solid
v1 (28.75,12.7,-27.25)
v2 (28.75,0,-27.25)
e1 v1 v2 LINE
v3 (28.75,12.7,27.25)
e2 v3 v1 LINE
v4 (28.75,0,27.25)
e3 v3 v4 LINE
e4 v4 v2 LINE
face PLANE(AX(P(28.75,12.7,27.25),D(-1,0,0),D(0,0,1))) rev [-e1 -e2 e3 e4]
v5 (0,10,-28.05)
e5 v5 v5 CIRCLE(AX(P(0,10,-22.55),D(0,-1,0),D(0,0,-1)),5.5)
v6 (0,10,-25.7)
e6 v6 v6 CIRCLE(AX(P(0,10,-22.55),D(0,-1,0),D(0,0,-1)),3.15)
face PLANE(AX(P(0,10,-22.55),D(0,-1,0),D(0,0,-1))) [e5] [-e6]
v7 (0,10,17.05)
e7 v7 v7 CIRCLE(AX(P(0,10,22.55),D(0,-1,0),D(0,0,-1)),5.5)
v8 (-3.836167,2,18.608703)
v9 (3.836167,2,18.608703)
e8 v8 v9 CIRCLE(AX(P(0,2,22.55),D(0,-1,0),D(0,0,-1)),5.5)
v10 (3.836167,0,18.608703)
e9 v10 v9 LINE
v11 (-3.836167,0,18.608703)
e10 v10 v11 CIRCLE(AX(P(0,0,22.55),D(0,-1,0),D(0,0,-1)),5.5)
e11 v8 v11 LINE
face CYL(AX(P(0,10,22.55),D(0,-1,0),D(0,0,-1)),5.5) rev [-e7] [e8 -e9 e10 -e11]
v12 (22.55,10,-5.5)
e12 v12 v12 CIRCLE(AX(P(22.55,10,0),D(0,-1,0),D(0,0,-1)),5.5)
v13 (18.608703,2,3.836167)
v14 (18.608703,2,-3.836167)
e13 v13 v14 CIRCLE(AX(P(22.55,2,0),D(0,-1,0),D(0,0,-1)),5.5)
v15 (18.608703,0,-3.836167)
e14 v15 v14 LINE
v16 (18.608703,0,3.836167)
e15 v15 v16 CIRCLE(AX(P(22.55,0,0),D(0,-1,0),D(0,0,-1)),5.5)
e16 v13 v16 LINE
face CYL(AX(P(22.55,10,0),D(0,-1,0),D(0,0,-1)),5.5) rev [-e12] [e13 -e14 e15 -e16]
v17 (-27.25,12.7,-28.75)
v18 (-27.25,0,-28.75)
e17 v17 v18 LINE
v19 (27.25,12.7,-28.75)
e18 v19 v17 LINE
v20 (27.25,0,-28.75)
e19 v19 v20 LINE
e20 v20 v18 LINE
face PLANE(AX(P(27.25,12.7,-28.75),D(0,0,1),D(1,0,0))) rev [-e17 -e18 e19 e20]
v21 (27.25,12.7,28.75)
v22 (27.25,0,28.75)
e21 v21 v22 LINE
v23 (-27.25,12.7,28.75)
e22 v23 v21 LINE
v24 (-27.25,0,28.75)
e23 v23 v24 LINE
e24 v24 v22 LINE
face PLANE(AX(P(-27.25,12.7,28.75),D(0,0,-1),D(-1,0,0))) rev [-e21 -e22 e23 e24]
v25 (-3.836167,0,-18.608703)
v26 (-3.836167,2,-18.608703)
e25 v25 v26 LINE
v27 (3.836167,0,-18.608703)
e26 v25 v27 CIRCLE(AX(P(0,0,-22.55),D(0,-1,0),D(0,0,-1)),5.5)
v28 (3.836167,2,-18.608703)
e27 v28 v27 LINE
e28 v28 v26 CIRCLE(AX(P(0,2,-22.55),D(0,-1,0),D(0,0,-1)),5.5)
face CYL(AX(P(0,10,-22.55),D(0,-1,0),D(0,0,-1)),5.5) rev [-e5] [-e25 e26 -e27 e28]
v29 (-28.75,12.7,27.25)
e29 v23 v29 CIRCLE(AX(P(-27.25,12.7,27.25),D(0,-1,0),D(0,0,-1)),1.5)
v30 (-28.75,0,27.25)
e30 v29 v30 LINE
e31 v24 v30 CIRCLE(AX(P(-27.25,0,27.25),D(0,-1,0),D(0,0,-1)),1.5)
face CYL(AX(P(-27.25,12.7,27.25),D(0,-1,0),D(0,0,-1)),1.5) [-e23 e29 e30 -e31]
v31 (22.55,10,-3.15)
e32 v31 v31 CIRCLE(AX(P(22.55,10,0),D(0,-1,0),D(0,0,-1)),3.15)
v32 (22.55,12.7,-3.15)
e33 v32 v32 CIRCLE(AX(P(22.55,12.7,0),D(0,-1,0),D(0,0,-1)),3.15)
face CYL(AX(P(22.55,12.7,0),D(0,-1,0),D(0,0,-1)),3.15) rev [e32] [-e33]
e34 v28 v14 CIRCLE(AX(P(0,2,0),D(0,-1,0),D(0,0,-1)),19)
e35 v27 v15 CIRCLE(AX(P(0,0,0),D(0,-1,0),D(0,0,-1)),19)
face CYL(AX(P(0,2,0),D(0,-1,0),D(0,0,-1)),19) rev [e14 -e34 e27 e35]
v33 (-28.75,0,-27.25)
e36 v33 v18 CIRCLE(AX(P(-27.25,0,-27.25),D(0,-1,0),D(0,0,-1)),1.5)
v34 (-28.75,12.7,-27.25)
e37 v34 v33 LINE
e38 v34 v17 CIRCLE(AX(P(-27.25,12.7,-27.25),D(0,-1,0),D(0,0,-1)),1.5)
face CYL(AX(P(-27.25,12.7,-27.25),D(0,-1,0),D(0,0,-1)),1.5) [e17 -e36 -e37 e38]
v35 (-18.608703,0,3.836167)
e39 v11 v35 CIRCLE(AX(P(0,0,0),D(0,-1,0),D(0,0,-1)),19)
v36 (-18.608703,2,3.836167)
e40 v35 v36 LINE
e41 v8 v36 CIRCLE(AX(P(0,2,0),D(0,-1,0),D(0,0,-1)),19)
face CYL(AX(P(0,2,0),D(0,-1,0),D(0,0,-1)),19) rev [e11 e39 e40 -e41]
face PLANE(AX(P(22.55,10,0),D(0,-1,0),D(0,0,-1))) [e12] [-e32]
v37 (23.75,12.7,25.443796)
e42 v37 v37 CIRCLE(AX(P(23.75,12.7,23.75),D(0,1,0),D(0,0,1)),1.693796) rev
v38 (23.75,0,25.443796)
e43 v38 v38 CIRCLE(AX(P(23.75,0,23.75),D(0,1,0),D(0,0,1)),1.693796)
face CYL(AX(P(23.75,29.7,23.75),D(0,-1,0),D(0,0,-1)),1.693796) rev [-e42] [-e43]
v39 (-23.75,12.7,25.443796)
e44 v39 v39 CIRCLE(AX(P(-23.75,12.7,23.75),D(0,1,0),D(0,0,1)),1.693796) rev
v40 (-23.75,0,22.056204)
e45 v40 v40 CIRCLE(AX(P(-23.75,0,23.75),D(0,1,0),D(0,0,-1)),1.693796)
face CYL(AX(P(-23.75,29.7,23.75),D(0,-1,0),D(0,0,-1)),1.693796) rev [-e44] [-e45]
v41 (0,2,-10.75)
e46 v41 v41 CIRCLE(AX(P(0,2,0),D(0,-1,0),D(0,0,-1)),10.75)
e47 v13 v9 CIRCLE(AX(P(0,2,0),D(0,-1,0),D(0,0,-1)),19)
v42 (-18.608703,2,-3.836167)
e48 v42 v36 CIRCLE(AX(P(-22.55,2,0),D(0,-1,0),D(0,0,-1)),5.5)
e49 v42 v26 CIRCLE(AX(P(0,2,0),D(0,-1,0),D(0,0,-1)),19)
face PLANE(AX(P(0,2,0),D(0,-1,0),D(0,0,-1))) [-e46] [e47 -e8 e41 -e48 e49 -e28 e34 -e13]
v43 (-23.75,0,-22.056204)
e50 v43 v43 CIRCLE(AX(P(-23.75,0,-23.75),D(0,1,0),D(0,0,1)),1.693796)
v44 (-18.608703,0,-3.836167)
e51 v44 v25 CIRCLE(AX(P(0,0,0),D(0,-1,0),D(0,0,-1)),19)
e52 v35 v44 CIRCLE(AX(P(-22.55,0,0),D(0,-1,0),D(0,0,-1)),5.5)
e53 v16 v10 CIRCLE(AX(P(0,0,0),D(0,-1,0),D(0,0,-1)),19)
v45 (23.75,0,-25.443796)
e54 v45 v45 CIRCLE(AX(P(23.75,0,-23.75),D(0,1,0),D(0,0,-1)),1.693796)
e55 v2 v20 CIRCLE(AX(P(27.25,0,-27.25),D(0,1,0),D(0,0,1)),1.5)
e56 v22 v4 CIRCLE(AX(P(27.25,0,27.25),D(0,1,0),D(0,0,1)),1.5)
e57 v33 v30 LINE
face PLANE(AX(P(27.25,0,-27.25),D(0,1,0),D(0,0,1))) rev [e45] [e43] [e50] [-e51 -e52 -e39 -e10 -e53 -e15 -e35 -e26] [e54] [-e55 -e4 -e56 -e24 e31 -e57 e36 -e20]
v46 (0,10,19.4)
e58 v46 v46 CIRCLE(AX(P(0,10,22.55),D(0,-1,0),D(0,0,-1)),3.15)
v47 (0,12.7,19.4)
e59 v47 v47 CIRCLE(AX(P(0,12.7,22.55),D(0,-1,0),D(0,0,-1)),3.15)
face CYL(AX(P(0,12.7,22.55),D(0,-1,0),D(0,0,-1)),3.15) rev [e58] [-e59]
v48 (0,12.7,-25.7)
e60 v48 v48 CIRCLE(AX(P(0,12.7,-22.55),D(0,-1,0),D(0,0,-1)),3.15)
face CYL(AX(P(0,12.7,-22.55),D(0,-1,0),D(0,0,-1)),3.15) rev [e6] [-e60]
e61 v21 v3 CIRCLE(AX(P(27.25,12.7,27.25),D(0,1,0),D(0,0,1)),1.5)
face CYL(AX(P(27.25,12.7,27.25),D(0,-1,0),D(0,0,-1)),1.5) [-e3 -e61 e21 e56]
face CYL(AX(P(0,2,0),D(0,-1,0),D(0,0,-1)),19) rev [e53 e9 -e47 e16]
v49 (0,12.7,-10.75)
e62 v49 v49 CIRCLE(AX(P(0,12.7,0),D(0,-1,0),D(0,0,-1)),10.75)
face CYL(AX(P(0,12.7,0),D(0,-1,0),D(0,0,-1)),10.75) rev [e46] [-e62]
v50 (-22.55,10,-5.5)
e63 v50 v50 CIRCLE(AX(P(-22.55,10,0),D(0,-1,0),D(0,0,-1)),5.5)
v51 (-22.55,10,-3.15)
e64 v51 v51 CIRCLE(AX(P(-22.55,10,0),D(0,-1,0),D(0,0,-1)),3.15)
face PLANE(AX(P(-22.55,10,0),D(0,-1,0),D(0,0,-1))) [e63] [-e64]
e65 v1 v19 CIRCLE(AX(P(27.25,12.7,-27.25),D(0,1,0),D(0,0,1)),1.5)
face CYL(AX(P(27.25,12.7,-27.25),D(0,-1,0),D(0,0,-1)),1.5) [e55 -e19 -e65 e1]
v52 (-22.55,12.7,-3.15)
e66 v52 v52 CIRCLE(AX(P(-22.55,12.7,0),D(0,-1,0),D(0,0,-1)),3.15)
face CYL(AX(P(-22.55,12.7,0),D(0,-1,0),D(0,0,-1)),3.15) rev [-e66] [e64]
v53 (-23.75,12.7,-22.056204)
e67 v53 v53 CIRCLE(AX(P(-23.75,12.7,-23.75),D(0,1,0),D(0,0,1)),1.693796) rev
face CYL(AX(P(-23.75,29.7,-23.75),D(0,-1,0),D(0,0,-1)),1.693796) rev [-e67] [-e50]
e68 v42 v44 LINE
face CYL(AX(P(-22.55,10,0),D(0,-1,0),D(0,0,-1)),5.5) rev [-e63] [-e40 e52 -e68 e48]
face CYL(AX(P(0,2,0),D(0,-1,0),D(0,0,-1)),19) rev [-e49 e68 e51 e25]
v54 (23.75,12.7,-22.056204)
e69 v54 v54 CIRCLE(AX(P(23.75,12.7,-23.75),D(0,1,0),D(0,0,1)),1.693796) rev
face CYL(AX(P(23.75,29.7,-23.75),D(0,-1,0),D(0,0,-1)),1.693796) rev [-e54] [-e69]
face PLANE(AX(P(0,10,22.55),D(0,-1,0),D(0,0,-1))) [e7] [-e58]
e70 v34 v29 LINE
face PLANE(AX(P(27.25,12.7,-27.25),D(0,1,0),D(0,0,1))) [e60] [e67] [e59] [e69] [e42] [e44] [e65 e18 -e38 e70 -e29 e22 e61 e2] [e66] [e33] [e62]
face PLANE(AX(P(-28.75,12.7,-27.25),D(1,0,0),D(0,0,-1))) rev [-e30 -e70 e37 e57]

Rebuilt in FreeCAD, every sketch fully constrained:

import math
import FreeCAD as App
import Part
import Sketcher
Q = App.Units.Quantity


def add_polygon(sketch, points):
    """Adds a closed chain of lines whose ends are joined by coincident constraints."""
    first, n = sketch.GeometryCount, len(points)
    for a, b in zip(points, points[1:] + points[:1]):
        sketch.addGeometry(Part.LineSegment(App.Vector(*a, 0), App.Vector(*b, 0)), False)
    for i in range(n):
        sketch.addConstraint(Sketcher.Constraint("Coincident", first + i, 2, first + (i + 1) % n, 1))

doc = App.newDocument("Part")
body = doc.addObject("PartDesign::Body", "Body")

# Sketch on XZ plane
sketch1 = body.newObject("Sketcher::SketchObject", "Sketch")
sketch1.AttachmentSupport = (doc.getObject("XZ_Plane"), [""])
sketch1.MapMode = "FlatFace"
sketch1.addGeometry([
    Part.LineSegment(App.Vector(-27.2, 28.8, 0), App.Vector(27.2, 28.8, 0)),  # 0
    Part.ArcOfCircle(Part.Circle(App.Vector(27.3, 27.3, 0), App.Vector(0, 0, 1), 1.5), math.radians(0), math.radians(90)),  # 1
    Part.LineSegment(App.Vector(28.8, 27.2, 0), App.Vector(28.8, -27.2, 0)),  # 2
    Part.ArcOfCircle(Part.Circle(App.Vector(27.3, -27.3, 0), App.Vector(0, 0, 1), 1.5), math.radians(-90), math.radians(0)),  # 3
    Part.LineSegment(App.Vector(27.2, -28.8, 0), App.Vector(-27.2, -28.8, 0)),  # 4
    Part.ArcOfCircle(Part.Circle(App.Vector(-27.3, -27.3, 0), App.Vector(0, 0, 1), 1.5), math.radians(180), math.radians(270)),  # 5
    Part.LineSegment(App.Vector(-28.8, -27.2, 0), App.Vector(-28.8, 27.2, 0)),  # 6
    Part.ArcOfCircle(Part.Circle(App.Vector(-27.3, 27.3, 0), App.Vector(0, 0, 1), 1.5), math.radians(90), math.radians(180)),  # 7
], False)
sketch1.addConstraint([
    Sketcher.Constraint("Tangent", 0, 2, 1, 2),
    Sketcher.Constraint("Tangent", 1, 1, 2, 1),
    Sketcher.Constraint("Tangent", 2, 2, 3, 2),
    Sketcher.Constraint("Tangent", 3, 1, 4, 1),
    Sketcher.Constraint("Tangent", 4, 2, 5, 2),
    Sketcher.Constraint("Tangent", 5, 1, 6, 1),
    Sketcher.Constraint("Tangent", 6, 2, 7, 2),
    Sketcher.Constraint("Tangent", 7, 1, 0, 1),
    Sketcher.Constraint("Horizontal", 0),
    Sketcher.Constraint("Vertical", 2),
    Sketcher.Constraint("Horizontal", 4),
    Sketcher.Constraint("Vertical", 6),
    Sketcher.Constraint("Equal", 1, 3),
    Sketcher.Constraint("Equal", 3, 5),
    Sketcher.Constraint("Equal", 5, 7),
    Sketcher.Constraint("Symmetric", 1, 3, 5, 3, -1, 1),
    Sketcher.Constraint("Equal", 4, 2),
    Sketcher.Constraint("Radius", 1, Q("1.5 mm")),
    Sketcher.Constraint("DistanceX", 0, 1, 0, 2, Q("54.5 mm")),
])
pad1 = body.newObject("PartDesign::Pad", "Pad")
pad1.Profile = sketch1
pad1.Length = 12.7
pad1.Reversed = True

# Sketch on XZ plane
sketch2 = body.newObject("Sketcher::SketchObject", "Sketch001")
sketch2.AttachmentSupport = (doc.getObject("XZ_Plane"), [""])
sketch2.MapMode = "FlatFace"
add_polygon(sketch2, [(-38, -38), (-38, 38), (38, 38), (38, -38)])  # lines 0-3
sketch2.addGeometry(Part.LineSegment(App.Vector(27.2, 28.8, 0), App.Vector(-27.2, 28.8, 0)), False)  # 4
sketch2.addGeometry(Part.ArcOfCircle(Part.Circle(App.Vector(-27.3, 27.3, 0), App.Vector(0, 0, 1), 1.5), math.radians(90), math.radians(180)), False)  # 5
sketch2.addGeometry(Part.LineSegment(App.Vector(-28.8, 27.2, 0), App.Vector(-28.8, -27.2, 0)), False)  # 6
sketch2.addGeometry(Part.ArcOfCircle(Part.Circle(App.Vector(-27.3, -27.3, 0), App.Vector(0, 0, 1), 1.5), math.radians(180), math.radians(270)), False)  # 7
sketch2.addGeometry(Part.LineSegment(App.Vector(-27.2, -28.8, 0), App.Vector(27.2, -28.8, 0)), False)  # 8
sketch2.addGeometry(Part.ArcOfCircle(Part.Circle(App.Vector(27.3, -27.3, 0), App.Vector(0, 0, 1), 1.5), math.radians(-90), math.radians(0)), False)  # 9
sketch2.addGeometry(Part.LineSegment(App.Vector(28.8, -27.2, 0), App.Vector(28.8, 27.2, 0)), False)  # 10
sketch2.addGeometry(Part.ArcOfCircle(Part.Circle(App.Vector(27.3, 27.3, 0), App.Vector(0, 0, 1), 1.5), math.radians(0), math.radians(90)), False)  # 11
sketch2.addGeometry(Part.Circle(App.Vector(-23.8, -23.8, 0), App.Vector(0, 0, 1), 1.7), False)  # 12
sketch2.addGeometry(Part.Circle(App.Vector(23.8, -23.8, 0), App.Vector(0, 0, 1), 1.7), False)  # 13
sketch2.addGeometry(Part.Circle(App.Vector(23.8, 23.8, 0), App.Vector(0, 0, 1), 1.7), False)  # 14
sketch2.addGeometry(Part.Circle(App.Vector(-23.8, 23.8, 0), App.Vector(0, 0, 1), 1.7), False)  # 15
sketch2.addConstraint([
    Sketcher.Constraint("Tangent", 4, 2, 5, 1),
    Sketcher.Constraint("Tangent", 5, 2, 6, 1),
    Sketcher.Constraint("Tangent", 6, 2, 7, 1),
    Sketcher.Constraint("Tangent", 7, 2, 8, 1),
    Sketcher.Constraint("Tangent", 8, 2, 9, 1),
    Sketcher.Constraint("Tangent", 9, 2, 10, 1),
    Sketcher.Constraint("Tangent", 10, 2, 11, 1),
    Sketcher.Constraint("Tangent", 11, 2, 4, 1),
    Sketcher.Constraint("Vertical", 0),
    Sketcher.Constraint("Horizontal", 1),
    Sketcher.Constraint("Vertical", 2),
    Sketcher.Constraint("Horizontal", 3),
    Sketcher.Constraint("Horizontal", 4),
    Sketcher.Constraint("Vertical", 6),
    Sketcher.Constraint("Horizontal", 8),
    Sketcher.Constraint("Vertical", 10),
    Sketcher.Constraint("Equal", 5, 7),
    Sketcher.Constraint("Equal", 7, 9),
    Sketcher.Constraint("Equal", 9, 11),
    Sketcher.Constraint("Equal", 12, 13),
    Sketcher.Constraint("Equal", 13, 14),
    Sketcher.Constraint("Equal", 14, 15),
    Sketcher.Constraint("Symmetric", 5, 3, 9, 3, -1, 1),
    Sketcher.Constraint("Symmetric", 12, 3, 14, 3, -1, 1),
    Sketcher.Constraint("Symmetric", 13, 3, 15, 3, -1, 1),
    Sketcher.Constraint("Symmetric", 0, 2, 2, 2, -1, 1),
    Sketcher.Constraint("Symmetric", 12, 3, 13, 3, -2),
    Sketcher.Constraint("Equal", 3, 0),
    Sketcher.Constraint("Equal", 8, 6),
    Sketcher.Constraint("Radius", 5, Q("1.5 mm")),
    Sketcher.Constraint("DistanceX", 4, 2, 4, 1, Q("54.5 mm")),
    Sketcher.Constraint("DistanceY", 12, 3, 5, 3, Q("51 mm")),
    Sketcher.Constraint("DistanceX", 12, 3, 9, 3, Q("51 mm")),
    Sketcher.Constraint("DistanceX", 1, 1, 1, 2, Q("75.96 mm")),
    Sketcher.Constraint("Diameter", 12, Q("3.387593 mm")),
])
pocket1 = body.newObject("PartDesign::Pocket", "Pocket")
pocket1.Profile = sketch2
pocket1.Length = 29.7

# Sketch on XZ plane
sketch3 = body.newObject("Sketcher::SketchObject", "Sketch002")
sketch3.AttachmentSupport = (doc.getObject("XZ_Plane"), [""])
sketch3.MapMode = "FlatFace"
sketch3.addGeometry(Part.Circle(App.Vector(0, 0, 0), App.Vector(0, 0, 1), 19), False)
sketch3.addConstraint([
    Sketcher.Constraint("Coincident", 0, 3, -1, 1),
    Sketcher.Constraint("Diameter", 0, Q("38 mm")),
])
pocket2 = body.newObject("PartDesign::Pocket", "Pocket001")
pocket2.Profile = sketch3
pocket2.Length = 2

# Sketch on XZ plane
sketch4 = body.newObject("Sketcher::SketchObject", "Sketch003")
sketch4.AttachmentSupport = (doc.getObject("XZ_Plane"), [""])
sketch4.MapMode = "FlatFace"
sketch4.AttachmentOffset = App.Placement(App.Vector(0, 0, -2), App.Rotation())
sketch4.addGeometry(Part.Circle(App.Vector(0, 0, 0), App.Vector(0, 0, 1), 11), False)
sketch4.addConstraint([
    Sketcher.Constraint("Coincident", 0, 3, -1, 1),
    Sketcher.Constraint("Diameter", 0, Q("21.5 mm")),
])
pocket3 = body.newObject("PartDesign::Pocket", "Pocket002")
pocket3.Profile = sketch4
pocket3.Type = "ThroughAll"

# Sketch on XZ plane
sketch5 = body.newObject("Sketcher::SketchObject", "Sketch004")
sketch5.AttachmentSupport = (doc.getObject("XZ_Plane"), [""])
sketch5.MapMode = "FlatFace"
sketch5.addGeometry([
    Part.Circle(App.Vector(23, 0, 0), App.Vector(0, 0, 1), 6),
    Part.Circle(App.Vector(0, -23, 0), App.Vector(0, 0, 1), 6),
    Part.Circle(App.Vector(-23, 0, 0), App.Vector(0, 0, 1), 6),
    Part.Circle(App.Vector(0, 23, 0), App.Vector(0, 0, 1), 6),
], False)
sketch5.addConstraint([
    Sketcher.Constraint("Equal", 0, 1),
    Sketcher.Constraint("Equal", 1, 2),
    Sketcher.Constraint("Equal", 2, 3),
    Sketcher.Constraint("Symmetric", 0, 3, 2, 3, -1, 1),
    Sketcher.Constraint("Symmetric", 1, 3, 3, 3, -1, 1),
    Sketcher.Constraint("PointOnObject", 0, 3, -1),
    Sketcher.Constraint("PointOnObject", 1, 3, -2),
    Sketcher.Constraint("Diameter", 0, Q("11 mm")),
    Sketcher.Constraint("DistanceX", 2, 3, 0, 3, Q("45.1 mm")),
    Sketcher.Constraint("DistanceY", 1, 3, 3, 3, Q("45.1 mm")),
])
pocket4 = body.newObject("PartDesign::Pocket", "Pocket003")
pocket4.Profile = sketch5
pocket4.Length = 10

# Sketch on XZ plane
sketch6 = body.newObject("Sketcher::SketchObject", "Sketch005")
sketch6.AttachmentSupport = (doc.getObject("XZ_Plane"), [""])
sketch6.MapMode = "FlatFace"
sketch6.AttachmentOffset = App.Placement(App.Vector(0, 0, -10), App.Rotation())
sketch6.addGeometry([
    Part.Circle(App.Vector(22.6, 0, 0), App.Vector(0, 0, 1), 3.1),
    Part.Circle(App.Vector(0, -22.6, 0), App.Vector(0, 0, 1), 3.1),
    Part.Circle(App.Vector(-22.6, 0, 0), App.Vector(0, 0, 1), 3.1),
    Part.Circle(App.Vector(0, 22.6, 0), App.Vector(0, 0, 1), 3.1),
], False)
sketch6.addConstraint([
    Sketcher.Constraint("Equal", 0, 1),
    Sketcher.Constraint("Equal", 1, 2),
    Sketcher.Constraint("Equal", 2, 3),
    Sketcher.Constraint("Symmetric", 0, 3, 2, 3, -1, 1),
    Sketcher.Constraint("Symmetric", 1, 3, 3, 3, -1, 1),
    Sketcher.Constraint("PointOnObject", 0, 3, -1),
    Sketcher.Constraint("PointOnObject", 1, 3, -2),
    Sketcher.Constraint("Diameter", 0, Q("6.3 mm")),
    Sketcher.Constraint("DistanceX", 2, 3, 0, 3, Q("45.1 mm")),
    Sketcher.Constraint("DistanceY", 1, 3, 3, 3, Q("45.1 mm")),
])
pocket5 = body.newObject("PartDesign::Pocket", "Pocket004")
pocket5.Profile = sketch6
pocket5.Type = "ThroughAll"

doc.recompute()
